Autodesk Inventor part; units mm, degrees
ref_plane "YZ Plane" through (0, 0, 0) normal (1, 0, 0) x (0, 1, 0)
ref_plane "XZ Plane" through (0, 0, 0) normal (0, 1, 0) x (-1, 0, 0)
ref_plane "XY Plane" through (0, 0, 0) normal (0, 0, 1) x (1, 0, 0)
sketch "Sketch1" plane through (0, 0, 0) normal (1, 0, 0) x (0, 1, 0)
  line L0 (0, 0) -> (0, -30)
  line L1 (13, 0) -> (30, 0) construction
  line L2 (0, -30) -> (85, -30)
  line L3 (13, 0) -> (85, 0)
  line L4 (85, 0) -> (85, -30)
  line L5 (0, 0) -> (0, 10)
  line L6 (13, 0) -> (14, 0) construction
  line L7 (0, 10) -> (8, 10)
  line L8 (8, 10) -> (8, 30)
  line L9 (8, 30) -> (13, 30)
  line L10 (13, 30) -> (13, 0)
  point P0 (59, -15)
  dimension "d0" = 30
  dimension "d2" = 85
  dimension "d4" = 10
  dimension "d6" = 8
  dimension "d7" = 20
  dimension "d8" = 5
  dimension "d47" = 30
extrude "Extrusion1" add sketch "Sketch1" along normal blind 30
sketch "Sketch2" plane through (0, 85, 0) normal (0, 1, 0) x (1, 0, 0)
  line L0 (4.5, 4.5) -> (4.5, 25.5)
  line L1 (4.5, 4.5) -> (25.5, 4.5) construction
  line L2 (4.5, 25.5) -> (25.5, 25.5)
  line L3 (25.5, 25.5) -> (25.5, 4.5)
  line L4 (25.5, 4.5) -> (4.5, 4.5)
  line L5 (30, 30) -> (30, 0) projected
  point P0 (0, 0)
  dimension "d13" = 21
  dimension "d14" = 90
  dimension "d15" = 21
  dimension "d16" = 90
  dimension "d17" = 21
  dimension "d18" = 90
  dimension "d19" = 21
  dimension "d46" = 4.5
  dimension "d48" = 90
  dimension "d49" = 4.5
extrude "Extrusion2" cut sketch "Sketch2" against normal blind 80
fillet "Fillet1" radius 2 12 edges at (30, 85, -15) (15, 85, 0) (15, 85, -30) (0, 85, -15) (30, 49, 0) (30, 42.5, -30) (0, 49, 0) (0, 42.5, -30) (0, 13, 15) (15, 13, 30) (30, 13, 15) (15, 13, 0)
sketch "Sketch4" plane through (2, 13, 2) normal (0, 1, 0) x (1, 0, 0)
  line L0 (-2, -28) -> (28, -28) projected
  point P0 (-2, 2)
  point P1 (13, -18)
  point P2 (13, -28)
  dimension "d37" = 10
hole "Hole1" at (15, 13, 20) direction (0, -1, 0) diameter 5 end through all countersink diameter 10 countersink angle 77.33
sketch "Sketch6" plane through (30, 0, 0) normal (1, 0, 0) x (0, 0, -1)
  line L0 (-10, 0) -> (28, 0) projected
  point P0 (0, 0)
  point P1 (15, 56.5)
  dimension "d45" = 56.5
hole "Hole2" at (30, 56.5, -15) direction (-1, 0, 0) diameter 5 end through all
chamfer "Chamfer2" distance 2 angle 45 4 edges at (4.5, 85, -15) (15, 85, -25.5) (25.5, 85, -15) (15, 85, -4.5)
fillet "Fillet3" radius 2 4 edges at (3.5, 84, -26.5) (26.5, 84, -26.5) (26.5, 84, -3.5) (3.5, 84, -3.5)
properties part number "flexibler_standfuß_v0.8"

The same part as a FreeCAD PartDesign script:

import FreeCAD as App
import Part
import Sketcher


def edges_at(feature, points):
    """Names of the edges that pass closest to the given points."""
    edges = feature.Shape.Edges
    near = lambda p: min(range(len(edges)), key=lambda i: edges[i].distToShape(Part.Vertex(*p))[0])
    return sorted({f"Edge{near(p) + 1}" for p in points})

doc = App.newDocument("Part")
body = doc.addObject("PartDesign::Body", "Body")

# Sketch on YZ plane
sketch1 = body.newObject("Sketcher::SketchObject", "Sketch")
sketch1.AttachmentSupport = (doc.getObject("YZ_Plane"), [""])
sketch1.MapMode = "FlatFace"
sketch1.addGeometry(Part.LineSegment(App.Vector(0, 10, 0), App.Vector(0, -30, 0)), False)
sketch1.addGeometry(Part.LineSegment(App.Vector(0, -30, 0), App.Vector(85, -30, 0)), False)
sketch1.addGeometry(Part.LineSegment(App.Vector(85, -30, 0), App.Vector(85, 0, 0)), False)
sketch1.addGeometry(Part.LineSegment(App.Vector(85, 0, 0), App.Vector(13, 0, 0)), False)
sketch1.addGeometry(Part.LineSegment(App.Vector(13, 0, 0), App.Vector(13, 30, 0)), False)
sketch1.addGeometry(Part.LineSegment(App.Vector(13, 30, 0), App.Vector(8, 30, 0)), False)
sketch1.addGeometry(Part.LineSegment(App.Vector(8, 30, 0), App.Vector(8, 10, 0)), False)
sketch1.addGeometry(Part.LineSegment(App.Vector(8, 10, 0), App.Vector(0, 10, 0)), False)
sketch1.addConstraint(Sketcher.Constraint("Coincident", 0, 2, 1, 1))
sketch1.addConstraint(Sketcher.Constraint("Coincident", 1, 2, 2, 1))
sketch1.addConstraint(Sketcher.Constraint("Coincident", 2, 2, 3, 1))
sketch1.addConstraint(Sketcher.Constraint("Coincident", 3, 2, 4, 1))
sketch1.addConstraint(Sketcher.Constraint("Coincident", 4, 2, 5, 1))
sketch1.addConstraint(Sketcher.Constraint("Coincident", 5, 2, 6, 1))
sketch1.addConstraint(Sketcher.Constraint("Coincident", 6, 2, 7, 1))
sketch1.addConstraint(Sketcher.Constraint("Coincident", 7, 2, 0, 1))
sketch1.addConstraint(Sketcher.Constraint("Vertical", 0))
sketch1.addConstraint(Sketcher.Constraint("Horizontal", 1))
sketch1.addConstraint(Sketcher.Constraint("Vertical", 2))
sketch1.addConstraint(Sketcher.Constraint("Horizontal", 3))
sketch1.addConstraint(Sketcher.Constraint("Vertical", 4))
sketch1.addConstraint(Sketcher.Constraint("Horizontal", 5))
sketch1.addConstraint(Sketcher.Constraint("Vertical", 6))
sketch1.addConstraint(Sketcher.Constraint("Horizontal", 7))
sketch1.addConstraint(Sketcher.Constraint("PointOnObject", 0, 2, -2))
sketch1.addConstraint(Sketcher.Constraint("PointOnObject", 2, 2, -1))
sketch1.addConstraint(Sketcher.Constraint("Equal", 2, 4))
sketch1.addConstraint(Sketcher.Constraint("DistanceX", 1, 1, 1, 2, 85.0))
sketch1.addConstraint(Sketcher.Constraint("DistanceX", 5, 2, 5, 1, 5.0))
sketch1.addConstraint(Sketcher.Constraint("DistanceX", 7, 2, 7, 1, 8.0))
sketch1.addConstraint(Sketcher.Constraint("DistanceY", 2, 1, 2, 2, 30.0))
sketch1.addConstraint(Sketcher.Constraint("DistanceY", 6, 2, 6, 1, 20.0))
pad1 = body.newObject("PartDesign::Pad", "Pad")
pad1.Profile = sketch1
pad1.Length = 30

# Sketch on XZ plane
sketch2 = body.newObject("Sketcher::SketchObject", "Sketch001")
sketch2.AttachmentSupport = (doc.getObject("XZ_Plane"), [""])
sketch2.MapMode = "FlatFace"
sketch2.AttachmentOffset = App.Placement(App.Vector(0, 0, -85), App.Rotation())
sketch2.addGeometry(Part.LineSegment(App.Vector(4, -26, 0), App.Vector(4, -4, 0)), False)
sketch2.addGeometry(Part.LineSegment(App.Vector(4, -4, 0), App.Vector(26, -4, 0)), False)
sketch2.addGeometry(Part.LineSegment(App.Vector(26, -4, 0), App.Vector(26, -26, 0)), False)
sketch2.addGeometry(Part.LineSegment(App.Vector(26, -26, 0), App.Vector(4, -26, 0)), False)
sketch2.addConstraint(Sketcher.Constraint("Coincident", 0, 2, 1, 1))
sketch2.addConstraint(Sketcher.Constraint("Coincident", 1, 2, 2, 1))
sketch2.addConstraint(Sketcher.Constraint("Coincident", 2, 2, 3, 1))
sketch2.addConstraint(Sketcher.Constraint("Coincident", 3, 2, 0, 1))
sketch2.addConstraint(Sketcher.Constraint("Vertical", 0))
sketch2.addConstraint(Sketcher.Constraint("Horizontal", 1))
sketch2.addConstraint(Sketcher.Constraint("Vertical", 2))
sketch2.addConstraint(Sketcher.Constraint("Horizontal", 3))
sketch2.addConstraint(Sketcher.Constraint("Equal", 3, 0))
sketch2.addConstraint(Sketcher.Constraint("DistanceX", 1, 1, 1, 2, 21.0))
sketch2.addConstraint(Sketcher.Constraint("DistanceX", -1, 1, 0, 2, 4.5))
sketch2.addConstraint(Sketcher.Constraint("DistanceY", 0, 2, -1, 1, 4.5))
pocket1 = body.newObject("PartDesign::Pocket", "Pocket")
pocket1.Profile = sketch2
pocket1.Length = 80
pocket1.Reversed = True
doc.recompute()

fillet = body.newObject("PartDesign::Fillet", "Fillet")
fillet.Base = (pocket1, edges_at(pocket1, [
    (30, 85, -15),
    (15, 85, 0),
    (15, 85, -30),
    (0, 85, -15),
    (30, 49, 0),
    (30, 42.5, -30),
    (0, 49, 0),
    (0, 42.5, -30),
    (0, 13, 15),
    (15, 13, 30),
    (30, 13, 15),
    (15, 13, 0),
]))
fillet.Radius = 2

# Sketch on XZ plane
sketch3 = body.newObject("Sketcher::SketchObject", "Sketch002")
sketch3.AttachmentSupport = (doc.getObject("XZ_Plane"), [""])
sketch3.MapMode = "FlatFace"
sketch3.AttachmentOffset = App.Placement(App.Vector(0, 0, -13), App.Rotation())
sketch3.addGeometry(Part.Circle(App.Vector(15, 20, 0), App.Vector(0, 0, 1), 2.5), False)
sketch3.addConstraint(Sketcher.Constraint("Diameter", 0, 5.0))
sketch3.addConstraint(Sketcher.Constraint("DistanceX", -1, 1, 0, 3, 15.0))
sketch3.addConstraint(Sketcher.Constraint("DistanceY", -1, 1, 0, 3, 20.0))
doc.recompute()
hole = body.newObject("PartDesign::Hole", "Hole")
hole.Profile = sketch3
hole.ThreadType = "None"
hole.Diameter = 5
hole.DepthType = "ThroughAll"
hole.HoleCutType = "Countersink"
hole.HoleCutDiameter = 10
hole.HoleCutCountersinkAngle = 77.33
hole.Reversed = True

# Sketch on YZ plane
sketch4 = body.newObject("Sketcher::SketchObject", "Sketch003")
sketch4.AttachmentSupport = (doc.getObject("YZ_Plane"), [""])
sketch4.MapMode = "FlatFace"
sketch4.AttachmentOffset = App.Placement(App.Vector(0, 0, 30), App.Rotation())
sketch4.addGeometry(Part.Circle(App.Vector(56.5, -15, 0), App.Vector(0, 0, 1), 2.5), False)
sketch4.addConstraint(Sketcher.Constraint("Diameter", 0, 5.0))
sketch4.addConstraint(Sketcher.Constraint("DistanceY", 0, 3, -1, 1, 15.0))
sketch4.addConstraint(Sketcher.Constraint("DistanceX", -1, 1, 0, 3, 56.5))
doc.recompute()
hole2 = body.newObject("PartDesign::Hole", "Hole001")
hole2.Profile = sketch4
hole2.ThreadType = "None"
hole2.Diameter = 5
hole2.DepthType = "ThroughAll"
doc.recompute()

chamfer = body.newObject("PartDesign::Chamfer", "Chamfer")
chamfer.Base = (hole2, edges_at(hole2, [
    (4.5, 85, -15),
    (15, 85, -25.5),
    (25.5, 85, -15),
    (15, 85, -4.5),
]))
chamfer.Size = 2
doc.recompute()

fillet2 = body.newObject("PartDesign::Fillet", "Fillet001")
fillet2.Base = (chamfer, edges_at(chamfer, [
    (3.5, 84, -26.5),
    (26.5, 84, -26.5),
    (26.5, 84, -3.5),
    (3.5, 84, -3.5),
]))
fillet2.Radius = 2

doc.recompute()
